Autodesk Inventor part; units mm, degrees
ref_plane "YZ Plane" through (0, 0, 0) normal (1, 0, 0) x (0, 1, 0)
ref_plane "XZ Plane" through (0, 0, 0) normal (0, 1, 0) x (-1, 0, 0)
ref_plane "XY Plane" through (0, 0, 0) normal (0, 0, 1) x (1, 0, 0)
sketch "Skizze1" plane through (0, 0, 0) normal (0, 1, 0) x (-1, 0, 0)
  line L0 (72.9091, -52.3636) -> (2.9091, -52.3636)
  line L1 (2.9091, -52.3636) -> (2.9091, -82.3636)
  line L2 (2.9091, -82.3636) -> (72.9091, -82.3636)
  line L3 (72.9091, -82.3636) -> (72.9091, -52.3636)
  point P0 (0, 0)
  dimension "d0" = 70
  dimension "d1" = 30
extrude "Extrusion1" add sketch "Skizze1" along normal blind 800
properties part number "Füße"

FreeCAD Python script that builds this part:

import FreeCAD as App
import Part
import Sketcher
from FreeCAD import Vector


def add_polygon(sketch, points):
    """Adds a closed chain of lines whose ends are joined by coincident constraints."""
    first, n = sketch.GeometryCount, len(points)
    for a, b in zip(points, points[1:] + points[:1]):
        sketch.addGeometry(Part.LineSegment(App.Vector(*a, 0), App.Vector(*b, 0)), False)
    for i in range(n):
        sketch.addConstraint(Sketcher.Constraint("Coincident", first + i, 2, first + (i + 1) % n, 1))

doc = App.newDocument("Part")
body = doc.addObject("PartDesign::Body", "Body")

# Sketch on XZ plane
sketch1 = body.newObject("Sketcher::SketchObject", "Sketch")
sketch1.AttachmentSupport = (doc.getObject("XZ_Plane"), [""])
sketch1.MapMode = "FlatFace"
add_polygon(sketch1, [(-73, -82), (-73, -52), (-3, -52), (-3, -82)])  # lines 0-3
sketch1.addConstraint(Sketcher.Constraint("Vertical", 0))
sketch1.addConstraint(Sketcher.Constraint("Horizontal", 1))
sketch1.addConstraint(Sketcher.Constraint("Vertical", 2))
sketch1.addConstraint(Sketcher.Constraint("Horizontal", 3))
sketch1.addConstraint(Sketcher.Constraint("DistanceX", 1, 1, 1, 2, 70.0))
sketch1.addConstraint(Sketcher.Constraint("DistanceY", 0, 1, 0, 2, 30.0))
sketch1.addConstraint(Sketcher.Constraint("DistanceX", 0, 2, -1, 1, 72.909))
sketch1.addConstraint(Sketcher.Constraint("DistanceY", 0, 2, -1, 1, 52.3636))
pad1 = body.newObject("PartDesign::Pad", "Pad")
pad1.Profile = sketch1
pad1.Length = 800
pad1.Reversed = True

doc.recompute()
